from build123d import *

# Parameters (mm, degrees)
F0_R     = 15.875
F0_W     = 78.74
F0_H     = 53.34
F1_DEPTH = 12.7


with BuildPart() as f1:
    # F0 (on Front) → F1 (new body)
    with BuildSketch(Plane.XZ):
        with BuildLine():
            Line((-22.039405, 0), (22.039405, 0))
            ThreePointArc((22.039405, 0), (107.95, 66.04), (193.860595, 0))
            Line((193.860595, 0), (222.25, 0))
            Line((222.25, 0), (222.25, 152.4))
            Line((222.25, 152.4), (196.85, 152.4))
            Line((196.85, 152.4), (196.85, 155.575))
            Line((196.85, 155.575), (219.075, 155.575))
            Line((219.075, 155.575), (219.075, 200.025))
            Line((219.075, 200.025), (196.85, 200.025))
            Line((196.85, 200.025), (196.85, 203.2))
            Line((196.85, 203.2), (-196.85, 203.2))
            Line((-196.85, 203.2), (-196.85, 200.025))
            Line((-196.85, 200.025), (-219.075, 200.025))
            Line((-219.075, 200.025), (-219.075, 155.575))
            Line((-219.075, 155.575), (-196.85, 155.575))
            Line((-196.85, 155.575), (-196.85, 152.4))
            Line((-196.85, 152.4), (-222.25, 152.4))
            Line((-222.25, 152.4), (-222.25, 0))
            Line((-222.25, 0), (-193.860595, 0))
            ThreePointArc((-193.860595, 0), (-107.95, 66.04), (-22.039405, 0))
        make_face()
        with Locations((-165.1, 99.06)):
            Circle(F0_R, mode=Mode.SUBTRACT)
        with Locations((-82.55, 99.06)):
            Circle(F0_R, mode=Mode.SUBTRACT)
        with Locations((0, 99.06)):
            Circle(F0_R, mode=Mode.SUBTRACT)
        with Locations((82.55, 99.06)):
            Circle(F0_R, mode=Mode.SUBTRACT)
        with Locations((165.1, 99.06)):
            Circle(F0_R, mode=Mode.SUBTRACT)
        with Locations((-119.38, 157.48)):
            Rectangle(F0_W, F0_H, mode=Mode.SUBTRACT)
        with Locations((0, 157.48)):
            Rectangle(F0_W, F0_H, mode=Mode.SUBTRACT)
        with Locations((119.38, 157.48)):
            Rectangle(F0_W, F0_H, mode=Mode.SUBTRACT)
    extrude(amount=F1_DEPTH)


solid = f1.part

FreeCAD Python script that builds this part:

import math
import FreeCAD as App
import Part
import Sketcher
from FreeCAD import Vector
Q = App.Units.Quantity

doc = App.newDocument("Part")
params = doc.addObject("Spreadsheet::Sheet", "Params")
for row, (alias, value) in enumerate([
    ("sketch1_radius", "3.5 in"),
    ("sketch1_diameter", "1.25 in"),
    ("sketch1_width", "1 in"),
    ("sketch1_height", "6 in"),
    ("sketch1_width2", "15.5 in"),
    ("pad1_length", "0.5 in"),
], start=1):
    params.set(f"A{row}", alias)
    params.set(f"B{row}", "=" + value)
    params.setAlias(f"B{row}", alias)

body = doc.addObject("PartDesign::Body", "Body")

# Sketch on XZ plane
sketch1 = body.newObject("Sketcher::SketchObject", "Sketch")
sketch1.AttachmentSupport = (doc.getObject("XZ_Plane"), [""])
sketch1.MapMode = "FlatFace"
sketch1.addGeometry([
    Part.LineSegment(Vector(-22, 0, 0), Vector(22, 0, 0)),  # 0
    Part.ArcOfCircle(Part.Circle(Vector(108, -22.9, 0), Vector(0, 0, 1), 88.9), math.radians(15), math.radians(165)),  # 1
    Part.LineSegment(Vector(193.9, 0, 0), Vector(222.2, 0, 0)),  # 2
    Part.LineSegment(Vector(222.2, 0, 0), Vector(222.2, 152.4, 0)),  # 3
    Part.LineSegment(Vector(222.2, 152.4, 0), Vector(196.8, 152.4, 0)),  # 4
    Part.LineSegment(Vector(196.8, 152.4, 0), Vector(196.8, 155.6, 0)),  # 5
    Part.LineSegment(Vector(196.8, 155.6, 0), Vector(219.1, 155.6, 0)),  # 6
    Part.LineSegment(Vector(219.1, 155.6, 0), Vector(219.1, 200, 0)),  # 7
    Part.LineSegment(Vector(219.1, 200, 0), Vector(196.8, 200, 0)),  # 8
    Part.LineSegment(Vector(196.8, 200, 0), Vector(196.8, 203.2, 0)),  # 9
    Part.LineSegment(Vector(196.8, 203.2, 0), Vector(-196.8, 203.2, 0)),  # 10
    Part.LineSegment(Vector(-196.8, 203.2, 0), Vector(-196.8, 200, 0)),  # 11
    Part.LineSegment(Vector(-196.8, 200, 0), Vector(-219.1, 200, 0)),  # 12
    Part.LineSegment(Vector(-219.1, 200, 0), Vector(-219.1, 155.6, 0)),  # 13
    Part.LineSegment(Vector(-219.1, 155.6, 0), Vector(-196.8, 155.6, 0)),  # 14
    Part.LineSegment(Vector(-196.8, 155.6, 0), Vector(-196.8, 152.4, 0)),  # 15
    Part.LineSegment(Vector(-196.8, 152.4, 0), Vector(-222.2, 152.4, 0)),  # 16
    Part.LineSegment(Vector(-222.2, 152.4, 0), Vector(-222.2, 0, 0)),  # 17
    Part.LineSegment(Vector(-222.2, 0, 0), Vector(-193.9, 0, 0)),  # 18
    Part.ArcOfCircle(Part.Circle(Vector(-108, -22.9, 0), Vector(0, 0, 1), 88.9), math.radians(15), math.radians(165)),  # 19
    Part.Circle(Vector(-165.1, 99.1, 0), Vector(0, 0, 1), 15.9),  # 20
    Part.Circle(Vector(-82.5, 99.1, 0), Vector(0, 0, 1), 15.9),  # 21
    Part.Circle(Vector(0, 99.1, 0), Vector(0, 0, 1), 15.9),  # 22
    Part.Circle(Vector(82.5, 99.1, 0), Vector(0, 0, 1), 15.9),  # 23
    Part.Circle(Vector(165.1, 99.1, 0), Vector(0, 0, 1), 15.9),  # 24
    Part.LineSegment(Vector(-80, 130.8, 0), Vector(-158.8, 130.8, 0)),  # 25
    Part.LineSegment(Vector(-158.8, 130.8, 0), Vector(-158.8, 184.2, 0)),  # 26
    Part.LineSegment(Vector(-158.8, 184.2, 0), Vector(-80, 184.2, 0)),  # 27
    Part.LineSegment(Vector(-80, 184.2, 0), Vector(-80, 130.8, 0)),  # 28
    Part.LineSegment(Vector(39.4, 130.8, 0), Vector(-39.4, 130.8, 0)),  # 29
    Part.LineSegment(Vector(-39.4, 130.8, 0), Vector(-39.4, 184.2, 0)),  # 30
    Part.LineSegment(Vector(-39.4, 184.2, 0), Vector(39.4, 184.2, 0)),  # 31
    Part.LineSegment(Vector(39.4, 184.2, 0), Vector(39.4, 130.8, 0)),  # 32
    Part.LineSegment(Vector(158.8, 130.8, 0), Vector(80, 130.8, 0)),  # 33
    Part.LineSegment(Vector(80, 130.8, 0), Vector(80, 184.2, 0)),  # 34
    Part.LineSegment(Vector(80, 184.2, 0), Vector(158.8, 184.2, 0)),  # 35
    Part.LineSegment(Vector(158.8, 184.2, 0), Vector(158.8, 130.8, 0)),  # 36
], False)
sketch1.addConstraint([
    Sketcher.Constraint("Coincident", 0, 2, 1, 2),
    Sketcher.Constraint("Coincident", 1, 1, 2, 1),
    Sketcher.Constraint("Coincident", 2, 2, 3, 1),
    Sketcher.Constraint("Coincident", 3, 2, 4, 1),
    Sketcher.Constraint("Coincident", 4, 2, 5, 1),
    Sketcher.Constraint("Coincident", 5, 2, 6, 1),
    Sketcher.Constraint("Coincident", 6, 2, 7, 1),
    Sketcher.Constraint("Coincident", 7, 2, 8, 1),
    Sketcher.Constraint("Coincident", 8, 2, 9, 1),
    Sketcher.Constraint("Coincident", 9, 2, 10, 1),
    Sketcher.Constraint("Coincident", 10, 2, 11, 1),
    Sketcher.Constraint("Coincident", 11, 2, 12, 1),
    Sketcher.Constraint("Coincident", 12, 2, 13, 1),
    Sketcher.Constraint("Coincident", 13, 2, 14, 1),
    Sketcher.Constraint("Coincident", 14, 2, 15, 1),
    Sketcher.Constraint("Coincident", 15, 2, 16, 1),
    Sketcher.Constraint("Coincident", 16, 2, 17, 1),
    Sketcher.Constraint("Coincident", 17, 2, 18, 1),
    Sketcher.Constraint("Coincident", 18, 2, 19, 2),
    Sketcher.Constraint("Coincident", 19, 1, 0, 1),
    Sketcher.Constraint("Coincident", 25, 2, 26, 1),
    Sketcher.Constraint("Coincident", 26, 2, 27, 1),
    Sketcher.Constraint("Coincident", 27, 2, 28, 1),
    Sketcher.Constraint("Coincident", 28, 2, 25, 1),
    Sketcher.Constraint("Coincident", 29, 2, 30, 1),
    Sketcher.Constraint("Coincident", 30, 2, 31, 1),
    Sketcher.Constraint("Coincident", 31, 2, 32, 1),
    Sketcher.Constraint("Coincident", 32, 2, 29, 1),
    Sketcher.Constraint("Coincident", 33, 2, 34, 1),
    Sketcher.Constraint("Coincident", 34, 2, 35, 1),
    Sketcher.Constraint("Coincident", 35, 2, 36, 1),
    Sketcher.Constraint("Coincident", 36, 2, 33, 1),
    Sketcher.Constraint("Horizontal", 0),
    Sketcher.Constraint("Horizontal", 2),
    Sketcher.Constraint("Vertical", 3),
    Sketcher.Constraint("Horizontal", 4),
    Sketcher.Constraint("Vertical", 5),
    Sketcher.Constraint("Horizontal", 6),
    Sketcher.Constraint("Vertical", 7),
    Sketcher.Constraint("Horizontal", 8),
    Sketcher.Constraint("Vertical", 9),
    Sketcher.Constraint("Horizontal", 10),
    Sketcher.Constraint("Vertical", 11),
    Sketcher.Constraint("Horizontal", 12),
    Sketcher.Constraint("Vertical", 13),
    Sketcher.Constraint("Horizontal", 14),
    Sketcher.Constraint("Vertical", 15),
    Sketcher.Constraint("Horizontal", 16),
    Sketcher.Constraint("Vertical", 17),
    Sketcher.Constraint("Horizontal", 18),
    Sketcher.Constraint("Horizontal", 25),
    Sketcher.Constraint("Vertical", 26),
    Sketcher.Constraint("Horizontal", 27),
    Sketcher.Constraint("Vertical", 28),
    Sketcher.Constraint("Horizontal", 29),
    Sketcher.Constraint("Vertical", 30),
    Sketcher.Constraint("Horizontal", 31),
    Sketcher.Constraint("Vertical", 32),
    Sketcher.Constraint("Horizontal", 33),
    Sketcher.Constraint("Vertical", 34),
    Sketcher.Constraint("Horizontal", 35),
    Sketcher.Constraint("Vertical", 36),
    Sketcher.Constraint("Equal", 1, 19),
    Sketcher.Constraint("Equal", 20, 21),
    Sketcher.Constraint("Equal", 21, 22),
    Sketcher.Constraint("Equal", 22, 23),
    Sketcher.Constraint("Equal", 23, 24),
    Sketcher.Constraint("Symmetric", 2, 2, 17, 2, -1, 1),
    Sketcher.Constraint("Symmetric", 0, 2, 19, 1, -1, 1),
    Sketcher.Constraint("Symmetric", 21, 3, 23, 3, -2),
    Sketcher.Constraint("Symmetric", 20, 3, 24, 3, -2),
    Sketcher.Constraint("Symmetric", 8, 2, 11, 2, -2),
    Sketcher.Constraint("Symmetric", 6, 2, 13, 2, -2),
    Sketcher.Constraint("Symmetric", 4, 2, 15, 2, -2),
    Sketcher.Constraint("Symmetric", 1, 1, 18, 2, -2),
    Sketcher.Constraint("Symmetric", 28, 2, 33, 2, -2),
    Sketcher.Constraint("Symmetric", 26, 2, 35, 2, -2),
    Sketcher.Constraint("PointOnObject", 22, 3, -2),
    Sketcher.Constraint("Horizontal", 20, 3, 21, 3),
    Sketcher.Constraint("Horizontal", 21, 3, 22, 3),
    Sketcher.Constraint("Horizontal", 28, 2, 29, 2),
    Sketcher.Constraint("Horizontal", 27, 2, 30, 2),
    Sketcher.Constraint("Vertical", 5, 2, 8, 2),
    Sketcher.Constraint("Equal", 27, 29),
    Sketcher.Constraint("Equal", 5, 9),
    Sketcher.Constraint("Radius", 1, Q("3.5 in")),
    Sketcher.Constraint("Diameter", 20, Q("1.25 in")),
    Sketcher.Constraint("DistanceX", 4, 2, 4, 1, Q("1 in")),
    Sketcher.Constraint("DistanceY", 3, 1, 3, 2, Q("6 in")),
    Sketcher.Constraint("DistanceX", 10, 2, 10, 1, Q("15.5 in")),
    Sketcher.Constraint("DistanceX", 25, 2, 25, 1, Q("3.1 in")),
    Sketcher.Constraint("DistanceY", 26, 1, 26, 2, Q("2.1 in")),
    Sketcher.Constraint("DistanceY", -1, 1, 9, 2, Q("8 in")),
    Sketcher.Constraint("DistanceX", 19, 3, 21, 3, Q("1 in")),
    Sketcher.Constraint("DistanceX", 10, 2, 23, 3, Q("11 in")),
    Sketcher.Constraint("DistanceY", 7, 1, 7, 2, Q("1.75 in")),
    Sketcher.Constraint("DistanceY", 1, 3, -1, 1, Q("0.9 in")),
    Sketcher.Constraint("DistanceX", 20, 3, -1, 1, Q("6.5 in")),
    Sketcher.Constraint("DistanceY", -1, 1, 20, 3, Q("3.9 in")),
    Sketcher.Constraint("DistanceX", 15, 2, 25, 2, Q("1.5 in")),
    Sketcher.Constraint("DistanceX", 28, 2, 29, 2, Q("1.6 in")),
    Sketcher.Constraint("DistanceX", 6, 1, 6, 2, Q("0.875 in")),
    Sketcher.Constraint("DistanceY", -1, 1, 25, 2, Q("5.15 in")),
])
sketch1.setExpression("Constraints[85]", "Params.sketch1_radius")
sketch1.setExpression("Constraints[86]", "Params.sketch1_diameter")
sketch1.setExpression("Constraints[87]", "Params.sketch1_width")
sketch1.setExpression("Constraints[88]", "Params.sketch1_height")
sketch1.setExpression("Constraints[89]", "Params.sketch1_width2")
pad1 = body.newObject("PartDesign::Pad", "Pad")
pad1.Profile = sketch1
pad1.setExpression("Length", "Params.pad1_length")

doc.recompute()
